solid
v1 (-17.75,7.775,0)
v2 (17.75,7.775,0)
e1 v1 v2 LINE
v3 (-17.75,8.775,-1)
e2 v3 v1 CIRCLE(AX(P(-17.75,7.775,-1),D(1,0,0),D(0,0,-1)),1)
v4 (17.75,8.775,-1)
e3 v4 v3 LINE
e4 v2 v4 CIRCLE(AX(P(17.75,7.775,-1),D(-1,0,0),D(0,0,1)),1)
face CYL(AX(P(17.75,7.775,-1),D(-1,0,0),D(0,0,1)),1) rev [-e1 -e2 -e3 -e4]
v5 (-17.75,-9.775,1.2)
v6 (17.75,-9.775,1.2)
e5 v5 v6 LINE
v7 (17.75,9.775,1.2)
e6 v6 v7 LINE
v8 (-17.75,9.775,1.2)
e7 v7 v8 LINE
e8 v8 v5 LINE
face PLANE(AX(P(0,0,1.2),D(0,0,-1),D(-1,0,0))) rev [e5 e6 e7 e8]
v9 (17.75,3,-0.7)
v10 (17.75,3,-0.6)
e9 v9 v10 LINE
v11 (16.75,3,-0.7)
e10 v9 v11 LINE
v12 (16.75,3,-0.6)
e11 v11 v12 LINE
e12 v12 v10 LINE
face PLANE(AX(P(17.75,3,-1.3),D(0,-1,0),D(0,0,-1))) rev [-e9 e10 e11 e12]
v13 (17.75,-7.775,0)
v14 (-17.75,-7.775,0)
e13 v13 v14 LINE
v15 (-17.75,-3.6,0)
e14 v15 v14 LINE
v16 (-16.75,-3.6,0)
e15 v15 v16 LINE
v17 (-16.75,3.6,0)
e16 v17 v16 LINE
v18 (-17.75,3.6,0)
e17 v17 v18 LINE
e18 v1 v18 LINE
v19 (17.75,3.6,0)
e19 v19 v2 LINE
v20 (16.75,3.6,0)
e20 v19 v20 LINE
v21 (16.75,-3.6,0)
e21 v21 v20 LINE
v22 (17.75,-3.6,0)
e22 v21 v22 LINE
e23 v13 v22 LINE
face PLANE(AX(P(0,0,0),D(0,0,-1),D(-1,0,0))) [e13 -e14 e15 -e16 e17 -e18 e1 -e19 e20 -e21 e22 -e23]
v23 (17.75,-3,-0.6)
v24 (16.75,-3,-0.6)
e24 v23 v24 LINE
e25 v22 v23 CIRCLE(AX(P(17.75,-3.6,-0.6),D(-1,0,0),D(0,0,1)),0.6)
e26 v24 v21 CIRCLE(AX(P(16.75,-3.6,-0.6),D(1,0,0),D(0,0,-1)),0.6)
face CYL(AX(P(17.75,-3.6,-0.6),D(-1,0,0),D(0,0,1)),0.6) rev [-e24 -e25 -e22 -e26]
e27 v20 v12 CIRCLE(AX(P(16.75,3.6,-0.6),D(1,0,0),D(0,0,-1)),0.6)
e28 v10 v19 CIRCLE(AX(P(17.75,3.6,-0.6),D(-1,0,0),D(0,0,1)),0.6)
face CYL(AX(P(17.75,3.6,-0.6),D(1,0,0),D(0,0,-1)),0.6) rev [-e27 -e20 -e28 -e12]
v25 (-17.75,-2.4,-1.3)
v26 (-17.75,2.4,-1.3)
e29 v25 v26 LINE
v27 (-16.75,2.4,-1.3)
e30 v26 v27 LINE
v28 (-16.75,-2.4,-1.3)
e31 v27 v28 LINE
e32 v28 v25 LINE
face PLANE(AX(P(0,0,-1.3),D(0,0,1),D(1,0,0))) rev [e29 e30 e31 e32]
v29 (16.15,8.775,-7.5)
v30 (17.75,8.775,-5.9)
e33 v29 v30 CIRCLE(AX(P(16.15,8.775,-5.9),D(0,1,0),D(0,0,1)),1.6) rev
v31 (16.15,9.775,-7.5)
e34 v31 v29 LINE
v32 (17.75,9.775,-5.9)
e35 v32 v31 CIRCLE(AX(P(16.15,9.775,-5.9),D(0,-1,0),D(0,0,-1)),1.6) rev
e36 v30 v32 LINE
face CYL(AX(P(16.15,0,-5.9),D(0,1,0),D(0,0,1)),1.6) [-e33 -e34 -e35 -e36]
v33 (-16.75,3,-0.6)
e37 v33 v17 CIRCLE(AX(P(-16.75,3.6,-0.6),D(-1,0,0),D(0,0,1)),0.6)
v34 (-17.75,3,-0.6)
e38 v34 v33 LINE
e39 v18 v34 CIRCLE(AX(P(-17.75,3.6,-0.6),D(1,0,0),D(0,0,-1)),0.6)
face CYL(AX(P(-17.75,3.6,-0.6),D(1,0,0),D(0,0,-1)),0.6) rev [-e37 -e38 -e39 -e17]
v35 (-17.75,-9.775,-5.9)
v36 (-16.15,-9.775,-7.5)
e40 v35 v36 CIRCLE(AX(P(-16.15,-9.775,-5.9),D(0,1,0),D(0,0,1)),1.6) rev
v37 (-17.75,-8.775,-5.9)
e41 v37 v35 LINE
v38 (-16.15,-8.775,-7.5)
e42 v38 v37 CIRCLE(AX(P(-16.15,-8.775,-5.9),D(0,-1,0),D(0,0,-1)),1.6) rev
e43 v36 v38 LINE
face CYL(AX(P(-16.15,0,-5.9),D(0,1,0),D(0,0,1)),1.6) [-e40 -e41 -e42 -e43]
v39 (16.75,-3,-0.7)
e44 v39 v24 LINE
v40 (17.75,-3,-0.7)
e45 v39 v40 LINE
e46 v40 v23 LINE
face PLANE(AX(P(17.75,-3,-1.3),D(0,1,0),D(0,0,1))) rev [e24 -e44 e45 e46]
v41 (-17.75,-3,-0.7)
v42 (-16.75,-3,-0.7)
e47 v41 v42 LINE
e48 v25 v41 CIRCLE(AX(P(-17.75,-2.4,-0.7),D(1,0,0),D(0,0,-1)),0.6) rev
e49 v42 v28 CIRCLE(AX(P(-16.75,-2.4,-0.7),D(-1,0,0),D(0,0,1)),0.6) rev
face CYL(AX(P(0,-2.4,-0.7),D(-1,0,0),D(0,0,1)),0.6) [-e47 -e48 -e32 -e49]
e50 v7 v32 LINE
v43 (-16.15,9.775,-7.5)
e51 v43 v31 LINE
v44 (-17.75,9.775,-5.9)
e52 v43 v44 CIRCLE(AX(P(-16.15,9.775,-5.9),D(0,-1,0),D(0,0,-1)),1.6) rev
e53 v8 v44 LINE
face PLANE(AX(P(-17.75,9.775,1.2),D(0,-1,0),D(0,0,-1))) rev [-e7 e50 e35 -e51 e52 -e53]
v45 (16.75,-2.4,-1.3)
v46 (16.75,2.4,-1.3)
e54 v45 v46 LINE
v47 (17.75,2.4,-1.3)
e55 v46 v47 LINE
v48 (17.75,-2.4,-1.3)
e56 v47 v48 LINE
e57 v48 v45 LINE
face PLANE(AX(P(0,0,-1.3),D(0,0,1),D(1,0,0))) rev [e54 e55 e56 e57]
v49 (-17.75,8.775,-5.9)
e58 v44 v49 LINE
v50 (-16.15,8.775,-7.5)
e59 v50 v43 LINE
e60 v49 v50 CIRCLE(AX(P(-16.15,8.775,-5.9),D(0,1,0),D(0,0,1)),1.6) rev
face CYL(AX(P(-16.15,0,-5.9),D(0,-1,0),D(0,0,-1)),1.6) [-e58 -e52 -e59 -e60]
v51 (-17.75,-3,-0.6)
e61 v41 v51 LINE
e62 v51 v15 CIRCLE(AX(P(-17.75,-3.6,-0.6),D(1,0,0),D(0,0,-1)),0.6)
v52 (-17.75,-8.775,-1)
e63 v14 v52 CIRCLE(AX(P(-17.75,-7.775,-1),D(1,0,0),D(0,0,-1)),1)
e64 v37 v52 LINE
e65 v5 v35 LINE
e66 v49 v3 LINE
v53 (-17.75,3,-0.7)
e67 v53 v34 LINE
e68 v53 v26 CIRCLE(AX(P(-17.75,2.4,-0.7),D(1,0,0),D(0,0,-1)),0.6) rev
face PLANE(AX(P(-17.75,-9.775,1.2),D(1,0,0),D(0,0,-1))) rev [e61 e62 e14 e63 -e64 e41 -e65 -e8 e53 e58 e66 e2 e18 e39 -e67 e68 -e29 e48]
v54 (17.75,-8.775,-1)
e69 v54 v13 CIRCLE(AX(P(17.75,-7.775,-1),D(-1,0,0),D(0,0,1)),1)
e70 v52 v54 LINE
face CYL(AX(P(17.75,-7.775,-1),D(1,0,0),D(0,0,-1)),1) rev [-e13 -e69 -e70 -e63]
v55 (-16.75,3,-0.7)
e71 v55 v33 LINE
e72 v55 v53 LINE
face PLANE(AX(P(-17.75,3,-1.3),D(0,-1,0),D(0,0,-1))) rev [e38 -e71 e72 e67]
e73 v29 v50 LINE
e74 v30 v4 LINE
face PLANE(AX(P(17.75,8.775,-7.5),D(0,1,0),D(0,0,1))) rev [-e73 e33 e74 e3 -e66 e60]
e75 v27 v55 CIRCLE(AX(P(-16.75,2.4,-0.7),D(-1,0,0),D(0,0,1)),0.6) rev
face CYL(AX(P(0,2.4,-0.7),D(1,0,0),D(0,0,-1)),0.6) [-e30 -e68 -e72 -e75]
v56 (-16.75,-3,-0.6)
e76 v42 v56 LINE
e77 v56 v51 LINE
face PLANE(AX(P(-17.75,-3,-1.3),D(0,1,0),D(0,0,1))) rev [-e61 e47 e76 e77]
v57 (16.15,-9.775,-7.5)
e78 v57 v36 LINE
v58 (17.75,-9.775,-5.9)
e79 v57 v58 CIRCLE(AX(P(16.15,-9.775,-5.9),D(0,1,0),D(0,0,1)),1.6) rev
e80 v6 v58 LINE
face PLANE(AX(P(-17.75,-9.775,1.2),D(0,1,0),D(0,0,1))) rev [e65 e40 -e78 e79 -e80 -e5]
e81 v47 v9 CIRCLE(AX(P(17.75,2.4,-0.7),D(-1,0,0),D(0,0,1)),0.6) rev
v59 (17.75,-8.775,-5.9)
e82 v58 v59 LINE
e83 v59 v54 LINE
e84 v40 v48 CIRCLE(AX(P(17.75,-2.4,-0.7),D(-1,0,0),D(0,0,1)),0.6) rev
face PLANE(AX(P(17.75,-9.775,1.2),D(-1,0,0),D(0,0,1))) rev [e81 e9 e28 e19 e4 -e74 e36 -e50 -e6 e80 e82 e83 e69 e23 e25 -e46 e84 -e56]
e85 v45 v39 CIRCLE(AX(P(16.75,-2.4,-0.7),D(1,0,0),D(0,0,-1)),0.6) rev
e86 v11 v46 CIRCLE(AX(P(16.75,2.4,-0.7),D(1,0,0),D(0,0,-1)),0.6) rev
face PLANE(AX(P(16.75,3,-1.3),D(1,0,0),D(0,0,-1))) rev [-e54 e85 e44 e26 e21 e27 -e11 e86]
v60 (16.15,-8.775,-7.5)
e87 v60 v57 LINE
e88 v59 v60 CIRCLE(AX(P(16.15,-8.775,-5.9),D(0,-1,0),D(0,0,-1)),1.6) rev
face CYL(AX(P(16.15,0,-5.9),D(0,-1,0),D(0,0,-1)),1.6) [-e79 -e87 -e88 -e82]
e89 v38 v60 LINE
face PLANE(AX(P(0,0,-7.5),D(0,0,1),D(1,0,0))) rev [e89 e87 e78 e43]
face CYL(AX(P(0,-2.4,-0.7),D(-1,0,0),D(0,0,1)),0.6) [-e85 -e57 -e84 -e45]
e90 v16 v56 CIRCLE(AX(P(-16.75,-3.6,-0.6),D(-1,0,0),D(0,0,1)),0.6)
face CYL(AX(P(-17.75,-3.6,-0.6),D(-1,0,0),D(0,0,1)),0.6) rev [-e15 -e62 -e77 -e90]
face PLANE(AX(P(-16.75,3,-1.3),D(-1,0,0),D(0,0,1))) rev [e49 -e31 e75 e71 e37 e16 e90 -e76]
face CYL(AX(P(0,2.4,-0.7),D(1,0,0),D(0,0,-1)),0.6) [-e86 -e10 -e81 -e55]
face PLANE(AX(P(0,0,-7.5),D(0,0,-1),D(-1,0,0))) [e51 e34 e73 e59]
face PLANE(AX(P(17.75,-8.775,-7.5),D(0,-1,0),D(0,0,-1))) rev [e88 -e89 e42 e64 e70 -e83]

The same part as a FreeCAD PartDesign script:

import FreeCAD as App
import Part
import Sketcher
from FreeCAD import Vector
Q = App.Units.Quantity


def edges_at(feature, points):
    """Names of the edges that pass closest to the given points."""
    edges = feature.Shape.Edges
    near = lambda p: min(range(len(edges)), key=lambda i: edges[i].distToShape(Part.Vertex(*p))[0])
    return sorted({f"Edge{near(p) + 1}" for p in points})


def add_polygon(sketch, points):
    """Adds a closed chain of lines whose ends are joined by coincident constraints."""
    first, n = sketch.GeometryCount, len(points)
    for a, b in zip(points, points[1:] + points[:1]):
        sketch.addGeometry(Part.LineSegment(App.Vector(*a, 0), App.Vector(*b, 0)), False)
    for i in range(n):
        sketch.addConstraint(Sketcher.Constraint("Coincident", first + i, 2, first + (i + 1) % n, 1))

doc = App.newDocument("Part")
body = doc.addObject("PartDesign::Body", "Body")

sketch1 = doc.addObject("Sketcher::SketchObject", "Sketch")
body.addObject(sketch1)
sketch1.AttachmentSupport = (doc.XY_Plane, [""])
sketch1.MapMode = "FlatFace"
add_polygon(sketch1, [(-17.75, 9.775), (-17.75, -9.775), (17.75, -9.775), (17.75, 9.775)])
sketch1.addConstraint(Sketcher.Constraint("Vertical", 0))
sketch1.addConstraint(Sketcher.Constraint("Horizontal", 1))
sketch1.addConstraint(Sketcher.Constraint("Vertical", 2))
sketch1.addConstraint(Sketcher.Constraint("Horizontal", 3))
sketch1.addConstraint(Sketcher.Constraint("Symmetric", 0, 2, 2, 2, -1, 1))
sketch1.addConstraint(Sketcher.Constraint("DistanceX", 1, 1, 1, 2, Q("35.5 mm")))
sketch1.addConstraint(Sketcher.Constraint("DistanceY", 0, 2, 0, 1, Q("19.55 mm")))
pad1 = doc.addObject("PartDesign::Pad", "Pad")
body.addObject(pad1)
pad1.Profile = sketch1
pad1.Length = 1.2

sketch2 = doc.addObject("Sketcher::SketchObject", "Sketch001")
body.addObject(sketch2)
sketch2.AttachmentSupport = (doc.XY_Plane, [""])
sketch2.MapMode = "FlatFace"
add_polygon(sketch2, [(17.75, 9.775), (17.75, 8.775), (-17.75, 8.775), (-17.75, 9.775)])
add_polygon(sketch2, [(17.75, -8.775), (17.75, -9.775), (-17.75, -9.775), (-17.75, -8.775)])
sketch2.addConstraint(Sketcher.Constraint("Vertical", 0))
sketch2.addConstraint(Sketcher.Constraint("Horizontal", 1))
sketch2.addConstraint(Sketcher.Constraint("Vertical", 2))
sketch2.addConstraint(Sketcher.Constraint("Horizontal", 3))
sketch2.addConstraint(Sketcher.Constraint("Vertical", 4))
sketch2.addConstraint(Sketcher.Constraint("Horizontal", 5))
sketch2.addConstraint(Sketcher.Constraint("Vertical", 6))
sketch2.addConstraint(Sketcher.Constraint("Horizontal", 7))
sketch2.addConstraint(Sketcher.Constraint("Symmetric", 2, 2, 4, 2, -1, 1))
sketch2.addConstraint(Sketcher.Constraint("Symmetric", 0, 2, 6, 2, -1, 1))
sketch2.addConstraint(Sketcher.Constraint("Vertical", 3, 2, 4, 2))
sketch2.addConstraint(Sketcher.Constraint("DistanceY", 0, 2, 0, 1, Q("1 mm")))
sketch2.addConstraint(Sketcher.Constraint("DistanceX", 1, 2, 1, 1, Q("35.5 mm")))
sketch2.addConstraint(Sketcher.Constraint("DistanceY", 4, 2, 0, 2, Q("18.55 mm")))
pad2 = doc.addObject("PartDesign::Pad", "Pad001")
body.addObject(pad2)
pad2.Profile = sketch2
pad2.Length = 7.5
pad2.Reversed = True
doc.recompute()

fillet = doc.addObject("PartDesign::Fillet", "Fillet")
body.addObject(fillet)
fillet.Base = (pad2, edges_at(pad2, [(0, 8.775, 0), (0, -8.775, 0)]))
fillet.Radius = 1

sketch3 = doc.addObject("Sketcher::SketchObject", "Sketch002")
body.addObject(sketch3)
sketch3.AttachmentSupport = (doc.XY_Plane, [""])
sketch3.MapMode = "FlatFace"
add_polygon(sketch3, [(-16.75, 3), (-16.75, -3), (-17.75, -3), (-17.75, 3)])
add_polygon(sketch3, [(17.75, 3), (17.75, -3), (16.75, -3), (16.75, 3)])
sketch3.addConstraint(Sketcher.Constraint("Vertical", 0))
sketch3.addConstraint(Sketcher.Constraint("Horizontal", 1))
sketch3.addConstraint(Sketcher.Constraint("Vertical", 2))
sketch3.addConstraint(Sketcher.Constraint("Horizontal", 3))
sketch3.addConstraint(Sketcher.Constraint("Vertical", 4))
sketch3.addConstraint(Sketcher.Constraint("Horizontal", 5))
sketch3.addConstraint(Sketcher.Constraint("Vertical", 6))
sketch3.addConstraint(Sketcher.Constraint("Horizontal", 7))
sketch3.addConstraint(Sketcher.Constraint("Symmetric", 2, 2, 4, 2, -1, 1))
sketch3.addConstraint(Sketcher.Constraint("Symmetric", 0, 2, 6, 2, -1, 1))
sketch3.addConstraint(Sketcher.Constraint("Horizontal", 1, 2, 4, 2))
sketch3.addConstraint(Sketcher.Constraint("DistanceX", 1, 2, 1, 1, Q("1 mm")))
sketch3.addConstraint(Sketcher.Constraint("DistanceY", 0, 2, 0, 1, Q("6 mm")))
sketch3.addConstraint(Sketcher.Constraint("DistanceX", 0, 2, 4, 2, Q("34.5 mm")))
pad3 = doc.addObject("PartDesign::Pad", "Pad002")
body.addObject(pad3)
pad3.Profile = sketch3
pad3.Length = 1.3
pad3.Reversed = True
doc.recompute()

fillet2 = doc.addObject("PartDesign::Fillet", "Fillet001")
body.addObject(fillet2)
fillet2.Base = (pad3, edges_at(pad3, [
    (-17.25, 3, 0),
    (-17.25, -3, 0),
    (-17.25, 3, -1.3),
    (-17.25, -3, -1.3),
    (17.25, 3, 0),
    (17.25, -3, 0),
    (17.25, 3, -1.3),
    (17.25, -3, -1.3),
]))
fillet2.Radius = 0.6
doc.recompute()

fillet3 = doc.addObject("PartDesign::Fillet", "Fillet002")
body.addObject(fillet3)
fillet3.Base = (fillet2, edges_at(fillet2, [
    (17.75, 9.275, -7.5),
    (-17.75, 9.275, -7.5),
    (17.75, -9.275, -7.5),
    (-17.75, -9.275, -7.5),
]))
fillet3.Radius = 1.6

doc.recompute()
